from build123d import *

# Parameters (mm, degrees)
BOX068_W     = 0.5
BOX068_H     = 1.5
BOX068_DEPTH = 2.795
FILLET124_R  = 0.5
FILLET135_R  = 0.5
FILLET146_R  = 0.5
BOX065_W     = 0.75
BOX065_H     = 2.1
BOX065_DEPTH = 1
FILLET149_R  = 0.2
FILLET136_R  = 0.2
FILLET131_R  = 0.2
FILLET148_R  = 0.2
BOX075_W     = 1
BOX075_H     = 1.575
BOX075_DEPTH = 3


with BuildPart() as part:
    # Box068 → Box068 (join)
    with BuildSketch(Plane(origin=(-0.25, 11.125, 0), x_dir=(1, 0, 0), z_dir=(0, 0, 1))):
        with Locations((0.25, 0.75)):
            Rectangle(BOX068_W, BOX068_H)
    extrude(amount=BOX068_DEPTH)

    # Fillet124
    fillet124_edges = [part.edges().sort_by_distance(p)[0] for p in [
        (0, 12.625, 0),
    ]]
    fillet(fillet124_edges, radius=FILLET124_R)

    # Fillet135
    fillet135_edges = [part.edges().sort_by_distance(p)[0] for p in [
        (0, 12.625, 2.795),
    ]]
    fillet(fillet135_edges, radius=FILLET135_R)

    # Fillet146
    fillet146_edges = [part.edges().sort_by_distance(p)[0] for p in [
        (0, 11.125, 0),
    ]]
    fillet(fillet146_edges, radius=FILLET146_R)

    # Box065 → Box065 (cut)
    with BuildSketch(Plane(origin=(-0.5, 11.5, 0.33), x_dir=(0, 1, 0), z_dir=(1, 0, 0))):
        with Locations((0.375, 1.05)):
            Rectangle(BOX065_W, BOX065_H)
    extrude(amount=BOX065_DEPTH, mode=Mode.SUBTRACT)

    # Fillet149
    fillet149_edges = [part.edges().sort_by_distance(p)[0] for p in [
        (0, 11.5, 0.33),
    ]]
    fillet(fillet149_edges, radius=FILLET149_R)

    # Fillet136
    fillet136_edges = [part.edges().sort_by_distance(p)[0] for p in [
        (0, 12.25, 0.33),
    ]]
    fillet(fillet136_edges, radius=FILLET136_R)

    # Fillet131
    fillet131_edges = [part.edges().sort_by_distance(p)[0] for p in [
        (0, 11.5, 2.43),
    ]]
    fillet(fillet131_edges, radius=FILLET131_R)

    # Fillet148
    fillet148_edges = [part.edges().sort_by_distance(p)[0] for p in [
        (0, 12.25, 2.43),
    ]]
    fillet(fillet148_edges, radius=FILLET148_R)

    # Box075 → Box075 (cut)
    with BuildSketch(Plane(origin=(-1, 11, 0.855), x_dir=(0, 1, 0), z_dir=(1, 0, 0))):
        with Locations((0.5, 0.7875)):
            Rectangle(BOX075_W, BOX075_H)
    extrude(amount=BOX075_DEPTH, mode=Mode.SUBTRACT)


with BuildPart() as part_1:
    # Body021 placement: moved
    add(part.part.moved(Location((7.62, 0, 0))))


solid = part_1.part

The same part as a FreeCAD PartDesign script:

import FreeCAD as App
import Part
import Sketcher
from FreeCAD import Vector


def edges_at(feature, points):
    """Names of the edges that pass closest to the given points."""
    edges = feature.Shape.Edges
    near = lambda p: min(range(len(edges)), key=lambda i: edges[i].distToShape(Part.Vertex(*p))[0])
    return sorted({f"Edge{near(p) + 1}" for p in points})


def add_polygon(sketch, points):
    """Adds a closed chain of lines whose ends are joined by coincident constraints."""
    first, n = sketch.GeometryCount, len(points)
    for a, b in zip(points, points[1:] + points[:1]):
        sketch.addGeometry(Part.LineSegment(App.Vector(*a, 0), App.Vector(*b, 0)), False)
    for i in range(n):
        sketch.addConstraint(Sketcher.Constraint("Coincident", first + i, 2, first + (i + 1) % n, 1))

doc = App.newDocument("Part")
params = doc.addObject("Spreadsheet::Sheet", "Params")
for row, (alias, value) in enumerate([
    ("sketch1_width", "0.5 mm"),
    ("sketch1_height", "1.5 mm"),
    ("pad1_length", "2.795 mm"),
    ("fillet_radius", "0.5 mm"),
    ("fillet2_radius", "0.5 mm"),
    ("fillet3_radius", "0.5 mm"),
    ("sketch2_height", "2.1 mm"),
    ("sketch2_width", "0.75 mm"),
    ("pocket1_length", "1 mm"),
    ("fillet4_radius", "0.2 mm"),
    ("fillet5_radius", "0.2 mm"),
    ("fillet6_radius", "0.2 mm"),
    ("fillet7_radius", "0.2 mm"),
    ("sketch3_width", "1 mm"),
    ("pocket2_length", "3 mm"),
], start=1):
    params.set(f"A{row}", alias)
    params.set(f"B{row}", "=" + value)
    params.setAlias(f"B{row}", alias)

body = doc.addObject("PartDesign::Body", "Body")

# Sketch on XY plane
sketch1 = body.newObject("Sketcher::SketchObject", "Sketch")
sketch1.AttachmentSupport = (doc.getObject("XY_Plane"), [""])
sketch1.MapMode = "FlatFace"
add_polygon(sketch1, [(-0.2, 12.6), (-0.2, 11.1), (0.2, 11.1), (0.2, 12.6)])  # lines 0-3
sketch1.addConstraint([
    Sketcher.Constraint("Vertical", 0),
    Sketcher.Constraint("Horizontal", 1),
    Sketcher.Constraint("Vertical", 2),
    Sketcher.Constraint("Horizontal", 3),
    Sketcher.Constraint("DistanceX", 1, 1, 1, 2, 0.5),
    Sketcher.Constraint("DistanceY", 0, 2, 0, 1, 1.5),
    Sketcher.Constraint("DistanceX", 0, 2, -1, 1, 0.25),
    Sketcher.Constraint("DistanceY", -1, 1, 0, 2, 11.125),
])
sketch1.setExpression("Constraints[8]", "Params.sketch1_width")
sketch1.setExpression("Constraints[9]", "Params.sketch1_height")
pad1 = body.newObject("PartDesign::Pad", "Pad")
pad1.Profile = sketch1
pad1.setExpression("Length", "Params.pad1_length")
doc.recompute()

fillet = body.newObject("PartDesign::Fillet", "Fillet")
fillet.Base = (pad1, edges_at(pad1, [(0, 12.625, 0)]))
fillet.setExpression("Radius", "Params.fillet_radius")
doc.recompute()

fillet2 = body.newObject("PartDesign::Fillet", "Fillet001")
fillet2.Base = (fillet, edges_at(fillet, [(0, 12.625, 2.795)]))
fillet2.setExpression("Radius", "Params.fillet2_radius")
doc.recompute()

fillet3 = body.newObject("PartDesign::Fillet", "Fillet002")
fillet3.Base = (fillet2, edges_at(fillet2, [(0, 11.125, 0)]))
fillet3.setExpression("Radius", "Params.fillet3_radius")

# Sketch on YZ plane
sketch2 = body.newObject("Sketcher::SketchObject", "Sketch001")
sketch2.AttachmentSupport = (doc.getObject("YZ_Plane"), [""])
sketch2.MapMode = "FlatFace"
sketch2.AttachmentOffset = App.Placement(Vector(0, 0, -0.5), App.Rotation())
add_polygon(sketch2, [(11.5, 2.4), (11.5, 0.3), (12.2, 0.3), (12.2, 2.4)])  # lines 0-3
sketch2.addConstraint([
    Sketcher.Constraint("Vertical", 0),
    Sketcher.Constraint("Horizontal", 1),
    Sketcher.Constraint("Vertical", 2),
    Sketcher.Constraint("Horizontal", 3),
    Sketcher.Constraint("DistanceY", 0, 2, 0, 1, 2.1),
    Sketcher.Constraint("DistanceX", 1, 1, 1, 2, 0.75),
    Sketcher.Constraint("DistanceX", -1, 1, 0, 2, 11.5),
    Sketcher.Constraint("DistanceY", -1, 1, 0, 2, 0.33),
])
sketch2.setExpression("Constraints[8]", "Params.sketch2_height")
sketch2.setExpression("Constraints[9]", "Params.sketch2_width")
pocket1 = body.newObject("PartDesign::Pocket", "Pocket")
pocket1.Profile = sketch2
pocket1.setExpression("Length", "Params.pocket1_length")
pocket1.Reversed = True
doc.recompute()

fillet4 = body.newObject("PartDesign::Fillet", "Fillet003")
fillet4.Base = (pocket1, edges_at(pocket1, [(0, 11.5, 0.33)]))
fillet4.setExpression("Radius", "Params.fillet4_radius")
doc.recompute()

fillet5 = body.newObject("PartDesign::Fillet", "Fillet004")
fillet5.Base = (fillet4, edges_at(fillet4, [(0, 12.25, 0.33)]))
fillet5.setExpression("Radius", "Params.fillet5_radius")
doc.recompute()

fillet6 = body.newObject("PartDesign::Fillet", "Fillet005")
fillet6.Base = (fillet5, edges_at(fillet5, [(0, 11.5, 2.43)]))
fillet6.setExpression("Radius", "Params.fillet6_radius")
doc.recompute()

fillet7 = body.newObject("PartDesign::Fillet", "Fillet006")
fillet7.Base = (fillet6, edges_at(fillet6, [(0, 12.25, 2.43)]))
fillet7.setExpression("Radius", "Params.fillet7_radius")

# Sketch on YZ plane
sketch3 = body.newObject("Sketcher::SketchObject", "Sketch002")
sketch3.AttachmentSupport = (doc.getObject("YZ_Plane"), [""])
sketch3.MapMode = "FlatFace"
sketch3.AttachmentOffset = App.Placement(Vector(0, 0, -1), App.Rotation())
add_polygon(sketch3, [(11, 2.4), (11, 0.9), (12, 0.9), (12, 2.4)])  # lines 0-3
sketch3.addConstraint([
    Sketcher.Constraint("Vertical", 0),
    Sketcher.Constraint("Horizontal", 1),
    Sketcher.Constraint("Vertical", 2),
    Sketcher.Constraint("Horizontal", 3),
    Sketcher.Constraint("DistanceX", 1, 1, 1, 2, 1.0),
    Sketcher.Constraint("DistanceX", -1, 1, 0, 2, 11.0),
    Sketcher.Constraint("DistanceY", 0, 2, 0, 1, 1.575),
    Sketcher.Constraint("DistanceY", -1, 1, 2, 2, 2.43),
])
sketch3.setExpression("Constraints[8]", "Params.sketch3_width")
pocket2 = body.newObject("PartDesign::Pocket", "Pocket001")
pocket2.Profile = sketch3
pocket2.setExpression("Length", "Params.pocket2_length")
pocket2.Reversed = True
body2 = doc.addObject("PartDesign::Body", "Body001")
doc.recompute()

body.Placement = App.Placement(Vector(7.62, 0, 0), App.Rotation(Vector(0, 0, 1), 0))
boolean = body2.newObject("PartDesign::Boolean", "Boolean")
boolean.Type = "Fuse"
boolean.addObjects([body])

doc.recompute()
